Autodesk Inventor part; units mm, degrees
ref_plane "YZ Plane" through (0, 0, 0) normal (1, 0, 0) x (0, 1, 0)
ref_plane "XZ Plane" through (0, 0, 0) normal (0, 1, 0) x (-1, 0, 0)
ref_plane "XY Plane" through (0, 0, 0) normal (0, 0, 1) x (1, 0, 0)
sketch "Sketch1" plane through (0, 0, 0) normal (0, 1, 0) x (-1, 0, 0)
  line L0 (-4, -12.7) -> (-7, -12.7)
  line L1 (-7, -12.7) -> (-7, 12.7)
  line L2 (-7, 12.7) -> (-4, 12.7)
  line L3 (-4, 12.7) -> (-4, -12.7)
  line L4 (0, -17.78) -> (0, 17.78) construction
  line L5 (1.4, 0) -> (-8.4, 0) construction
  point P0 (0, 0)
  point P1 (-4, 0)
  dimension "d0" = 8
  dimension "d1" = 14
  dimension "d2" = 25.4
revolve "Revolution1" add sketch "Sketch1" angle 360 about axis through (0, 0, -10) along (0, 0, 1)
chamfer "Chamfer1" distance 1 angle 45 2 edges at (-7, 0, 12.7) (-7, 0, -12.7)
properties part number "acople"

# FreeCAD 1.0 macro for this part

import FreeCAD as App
import Part
import Sketcher
from FreeCAD import Vector


def edges_at(feature, points):
    """Names of the edges that pass closest to the given points."""
    edges = feature.Shape.Edges
    near = lambda p: min(range(len(edges)), key=lambda i: edges[i].distToShape(Part.Vertex(*p))[0])
    return sorted({f"Edge{near(p) + 1}" for p in points})


def add_polygon(sketch, points):
    """Adds a closed chain of lines whose ends are joined by coincident constraints."""
    first, n = sketch.GeometryCount, len(points)
    for a, b in zip(points, points[1:] + points[:1]):
        sketch.addGeometry(Part.LineSegment(App.Vector(*a, 0), App.Vector(*b, 0)), False)
    for i in range(n):
        sketch.addConstraint(Sketcher.Constraint("Coincident", first + i, 2, first + (i + 1) % n, 1))

doc = App.newDocument("Part")
params = doc.addObject("Spreadsheet::Sheet", "Params")
for row, (alias, value) in enumerate([
    ("sketch1_height", "25.4 mm"),
    ("sketch1_width", "3 mm"),
    ("revolution_angle", "360 deg"),
    ("chamfer_size", "1 mm"),
], start=1):
    params.set(f"A{row}", alias)
    params.set(f"B{row}", "=" + value)
    params.setAlias(f"B{row}", alias)

body = doc.addObject("PartDesign::Body", "Body")

sketch1 = body.newObject("Sketcher::SketchObject", "Sketch")
sketch1.AttachmentSupport = (doc.getObject("XZ_Plane"), [""])
sketch1.MapMode = "FlatFace"
add_polygon(sketch1, [(7, -12.7), (4, -12.7), (4, 12.7), (7, 12.7)])
sketch1.addConstraint(Sketcher.Constraint("Horizontal", 0))
sketch1.addConstraint(Sketcher.Constraint("Vertical", 1))
sketch1.addConstraint(Sketcher.Constraint("Horizontal", 2))
sketch1.addConstraint(Sketcher.Constraint("Vertical", 3))
sketch1.addConstraint(Sketcher.Constraint("DistanceY", 1, 1, 1, 2, 25.4))
sketch1.addConstraint(Sketcher.Constraint("DistanceX", 0, 2, 0, 1, 3.0))
sketch1.addConstraint(Sketcher.Constraint("DistanceX", -1, 1, 0, 2, 4.0))
sketch1.addConstraint(Sketcher.Constraint("DistanceY", 0, 2, -1, 1, 12.7))
sketch1.setExpression("Constraints[8]", "Params.sketch1_height")
sketch1.setExpression("Constraints[9]", "Params.sketch1_width")
revolution = body.newObject("PartDesign::Revolution", "Revolution")
revolution.Profile = sketch1
revolution.ReferenceAxis = (sketch1, ["V_Axis"])
revolution.setExpression("Angle", "Params.revolution_angle")
doc.recompute()

chamfer = body.newObject("PartDesign::Chamfer", "Chamfer")
chamfer.Base = (revolution, edges_at(revolution, [(-7, 0, 12.7), (-7, 0, -12.7)]))
chamfer.setExpression("Size", "Params.chamfer_size")

doc.recompute()
